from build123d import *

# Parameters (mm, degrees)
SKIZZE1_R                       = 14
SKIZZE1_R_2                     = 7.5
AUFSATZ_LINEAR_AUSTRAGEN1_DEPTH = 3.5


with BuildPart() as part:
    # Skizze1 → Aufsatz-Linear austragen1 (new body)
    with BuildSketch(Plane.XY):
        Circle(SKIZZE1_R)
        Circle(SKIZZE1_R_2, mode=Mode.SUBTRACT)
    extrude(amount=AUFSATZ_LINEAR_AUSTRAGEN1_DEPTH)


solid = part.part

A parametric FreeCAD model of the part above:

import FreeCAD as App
import Part
import Sketcher
from FreeCAD import Vector
Q = App.Units.Quantity

doc = App.newDocument("Part")
params = doc.addObject("Spreadsheet::Sheet", "Params")
for row, (alias, value) in enumerate([
    ("sketch1_diameter", "28 mm"),
    ("sketch1_diameter2", "15 mm"),
    ("pad1_length", "3.5 mm"),
], start=1):
    params.set(f"A{row}", alias)
    params.set(f"B{row}", "=" + value)
    params.setAlias(f"B{row}", alias)

body = doc.addObject("PartDesign::Body", "Body")

# Sketch on XY plane
sketch1 = body.newObject("Sketcher::SketchObject", "Sketch")
sketch1.AttachmentSupport = (doc.getObject("XY_Plane"), [""])
sketch1.MapMode = "FlatFace"
sketch1.addGeometry([
    Part.Circle(Vector(0, 0, 0), Vector(0, 0, 1), 14),
    Part.Circle(Vector(0, 0, 0), Vector(0, 0, 1), 8),
], False)
sketch1.addConstraint([
    Sketcher.Constraint("Coincident", 0, 3, -1, 1),
    Sketcher.Constraint("Coincident", 1, 3, -1, 1),
    Sketcher.Constraint("Diameter", 0, Q("28 mm")),
    Sketcher.Constraint("Diameter", 1, Q("15 mm")),
])
sketch1.setExpression("Constraints[2]", "Params.sketch1_diameter")
sketch1.setExpression("Constraints[3]", "Params.sketch1_diameter2")
pad1 = body.newObject("PartDesign::Pad", "Pad")
pad1.Profile = sketch1
pad1.setExpression("Length", "Params.pad1_length")

doc.recompute()
